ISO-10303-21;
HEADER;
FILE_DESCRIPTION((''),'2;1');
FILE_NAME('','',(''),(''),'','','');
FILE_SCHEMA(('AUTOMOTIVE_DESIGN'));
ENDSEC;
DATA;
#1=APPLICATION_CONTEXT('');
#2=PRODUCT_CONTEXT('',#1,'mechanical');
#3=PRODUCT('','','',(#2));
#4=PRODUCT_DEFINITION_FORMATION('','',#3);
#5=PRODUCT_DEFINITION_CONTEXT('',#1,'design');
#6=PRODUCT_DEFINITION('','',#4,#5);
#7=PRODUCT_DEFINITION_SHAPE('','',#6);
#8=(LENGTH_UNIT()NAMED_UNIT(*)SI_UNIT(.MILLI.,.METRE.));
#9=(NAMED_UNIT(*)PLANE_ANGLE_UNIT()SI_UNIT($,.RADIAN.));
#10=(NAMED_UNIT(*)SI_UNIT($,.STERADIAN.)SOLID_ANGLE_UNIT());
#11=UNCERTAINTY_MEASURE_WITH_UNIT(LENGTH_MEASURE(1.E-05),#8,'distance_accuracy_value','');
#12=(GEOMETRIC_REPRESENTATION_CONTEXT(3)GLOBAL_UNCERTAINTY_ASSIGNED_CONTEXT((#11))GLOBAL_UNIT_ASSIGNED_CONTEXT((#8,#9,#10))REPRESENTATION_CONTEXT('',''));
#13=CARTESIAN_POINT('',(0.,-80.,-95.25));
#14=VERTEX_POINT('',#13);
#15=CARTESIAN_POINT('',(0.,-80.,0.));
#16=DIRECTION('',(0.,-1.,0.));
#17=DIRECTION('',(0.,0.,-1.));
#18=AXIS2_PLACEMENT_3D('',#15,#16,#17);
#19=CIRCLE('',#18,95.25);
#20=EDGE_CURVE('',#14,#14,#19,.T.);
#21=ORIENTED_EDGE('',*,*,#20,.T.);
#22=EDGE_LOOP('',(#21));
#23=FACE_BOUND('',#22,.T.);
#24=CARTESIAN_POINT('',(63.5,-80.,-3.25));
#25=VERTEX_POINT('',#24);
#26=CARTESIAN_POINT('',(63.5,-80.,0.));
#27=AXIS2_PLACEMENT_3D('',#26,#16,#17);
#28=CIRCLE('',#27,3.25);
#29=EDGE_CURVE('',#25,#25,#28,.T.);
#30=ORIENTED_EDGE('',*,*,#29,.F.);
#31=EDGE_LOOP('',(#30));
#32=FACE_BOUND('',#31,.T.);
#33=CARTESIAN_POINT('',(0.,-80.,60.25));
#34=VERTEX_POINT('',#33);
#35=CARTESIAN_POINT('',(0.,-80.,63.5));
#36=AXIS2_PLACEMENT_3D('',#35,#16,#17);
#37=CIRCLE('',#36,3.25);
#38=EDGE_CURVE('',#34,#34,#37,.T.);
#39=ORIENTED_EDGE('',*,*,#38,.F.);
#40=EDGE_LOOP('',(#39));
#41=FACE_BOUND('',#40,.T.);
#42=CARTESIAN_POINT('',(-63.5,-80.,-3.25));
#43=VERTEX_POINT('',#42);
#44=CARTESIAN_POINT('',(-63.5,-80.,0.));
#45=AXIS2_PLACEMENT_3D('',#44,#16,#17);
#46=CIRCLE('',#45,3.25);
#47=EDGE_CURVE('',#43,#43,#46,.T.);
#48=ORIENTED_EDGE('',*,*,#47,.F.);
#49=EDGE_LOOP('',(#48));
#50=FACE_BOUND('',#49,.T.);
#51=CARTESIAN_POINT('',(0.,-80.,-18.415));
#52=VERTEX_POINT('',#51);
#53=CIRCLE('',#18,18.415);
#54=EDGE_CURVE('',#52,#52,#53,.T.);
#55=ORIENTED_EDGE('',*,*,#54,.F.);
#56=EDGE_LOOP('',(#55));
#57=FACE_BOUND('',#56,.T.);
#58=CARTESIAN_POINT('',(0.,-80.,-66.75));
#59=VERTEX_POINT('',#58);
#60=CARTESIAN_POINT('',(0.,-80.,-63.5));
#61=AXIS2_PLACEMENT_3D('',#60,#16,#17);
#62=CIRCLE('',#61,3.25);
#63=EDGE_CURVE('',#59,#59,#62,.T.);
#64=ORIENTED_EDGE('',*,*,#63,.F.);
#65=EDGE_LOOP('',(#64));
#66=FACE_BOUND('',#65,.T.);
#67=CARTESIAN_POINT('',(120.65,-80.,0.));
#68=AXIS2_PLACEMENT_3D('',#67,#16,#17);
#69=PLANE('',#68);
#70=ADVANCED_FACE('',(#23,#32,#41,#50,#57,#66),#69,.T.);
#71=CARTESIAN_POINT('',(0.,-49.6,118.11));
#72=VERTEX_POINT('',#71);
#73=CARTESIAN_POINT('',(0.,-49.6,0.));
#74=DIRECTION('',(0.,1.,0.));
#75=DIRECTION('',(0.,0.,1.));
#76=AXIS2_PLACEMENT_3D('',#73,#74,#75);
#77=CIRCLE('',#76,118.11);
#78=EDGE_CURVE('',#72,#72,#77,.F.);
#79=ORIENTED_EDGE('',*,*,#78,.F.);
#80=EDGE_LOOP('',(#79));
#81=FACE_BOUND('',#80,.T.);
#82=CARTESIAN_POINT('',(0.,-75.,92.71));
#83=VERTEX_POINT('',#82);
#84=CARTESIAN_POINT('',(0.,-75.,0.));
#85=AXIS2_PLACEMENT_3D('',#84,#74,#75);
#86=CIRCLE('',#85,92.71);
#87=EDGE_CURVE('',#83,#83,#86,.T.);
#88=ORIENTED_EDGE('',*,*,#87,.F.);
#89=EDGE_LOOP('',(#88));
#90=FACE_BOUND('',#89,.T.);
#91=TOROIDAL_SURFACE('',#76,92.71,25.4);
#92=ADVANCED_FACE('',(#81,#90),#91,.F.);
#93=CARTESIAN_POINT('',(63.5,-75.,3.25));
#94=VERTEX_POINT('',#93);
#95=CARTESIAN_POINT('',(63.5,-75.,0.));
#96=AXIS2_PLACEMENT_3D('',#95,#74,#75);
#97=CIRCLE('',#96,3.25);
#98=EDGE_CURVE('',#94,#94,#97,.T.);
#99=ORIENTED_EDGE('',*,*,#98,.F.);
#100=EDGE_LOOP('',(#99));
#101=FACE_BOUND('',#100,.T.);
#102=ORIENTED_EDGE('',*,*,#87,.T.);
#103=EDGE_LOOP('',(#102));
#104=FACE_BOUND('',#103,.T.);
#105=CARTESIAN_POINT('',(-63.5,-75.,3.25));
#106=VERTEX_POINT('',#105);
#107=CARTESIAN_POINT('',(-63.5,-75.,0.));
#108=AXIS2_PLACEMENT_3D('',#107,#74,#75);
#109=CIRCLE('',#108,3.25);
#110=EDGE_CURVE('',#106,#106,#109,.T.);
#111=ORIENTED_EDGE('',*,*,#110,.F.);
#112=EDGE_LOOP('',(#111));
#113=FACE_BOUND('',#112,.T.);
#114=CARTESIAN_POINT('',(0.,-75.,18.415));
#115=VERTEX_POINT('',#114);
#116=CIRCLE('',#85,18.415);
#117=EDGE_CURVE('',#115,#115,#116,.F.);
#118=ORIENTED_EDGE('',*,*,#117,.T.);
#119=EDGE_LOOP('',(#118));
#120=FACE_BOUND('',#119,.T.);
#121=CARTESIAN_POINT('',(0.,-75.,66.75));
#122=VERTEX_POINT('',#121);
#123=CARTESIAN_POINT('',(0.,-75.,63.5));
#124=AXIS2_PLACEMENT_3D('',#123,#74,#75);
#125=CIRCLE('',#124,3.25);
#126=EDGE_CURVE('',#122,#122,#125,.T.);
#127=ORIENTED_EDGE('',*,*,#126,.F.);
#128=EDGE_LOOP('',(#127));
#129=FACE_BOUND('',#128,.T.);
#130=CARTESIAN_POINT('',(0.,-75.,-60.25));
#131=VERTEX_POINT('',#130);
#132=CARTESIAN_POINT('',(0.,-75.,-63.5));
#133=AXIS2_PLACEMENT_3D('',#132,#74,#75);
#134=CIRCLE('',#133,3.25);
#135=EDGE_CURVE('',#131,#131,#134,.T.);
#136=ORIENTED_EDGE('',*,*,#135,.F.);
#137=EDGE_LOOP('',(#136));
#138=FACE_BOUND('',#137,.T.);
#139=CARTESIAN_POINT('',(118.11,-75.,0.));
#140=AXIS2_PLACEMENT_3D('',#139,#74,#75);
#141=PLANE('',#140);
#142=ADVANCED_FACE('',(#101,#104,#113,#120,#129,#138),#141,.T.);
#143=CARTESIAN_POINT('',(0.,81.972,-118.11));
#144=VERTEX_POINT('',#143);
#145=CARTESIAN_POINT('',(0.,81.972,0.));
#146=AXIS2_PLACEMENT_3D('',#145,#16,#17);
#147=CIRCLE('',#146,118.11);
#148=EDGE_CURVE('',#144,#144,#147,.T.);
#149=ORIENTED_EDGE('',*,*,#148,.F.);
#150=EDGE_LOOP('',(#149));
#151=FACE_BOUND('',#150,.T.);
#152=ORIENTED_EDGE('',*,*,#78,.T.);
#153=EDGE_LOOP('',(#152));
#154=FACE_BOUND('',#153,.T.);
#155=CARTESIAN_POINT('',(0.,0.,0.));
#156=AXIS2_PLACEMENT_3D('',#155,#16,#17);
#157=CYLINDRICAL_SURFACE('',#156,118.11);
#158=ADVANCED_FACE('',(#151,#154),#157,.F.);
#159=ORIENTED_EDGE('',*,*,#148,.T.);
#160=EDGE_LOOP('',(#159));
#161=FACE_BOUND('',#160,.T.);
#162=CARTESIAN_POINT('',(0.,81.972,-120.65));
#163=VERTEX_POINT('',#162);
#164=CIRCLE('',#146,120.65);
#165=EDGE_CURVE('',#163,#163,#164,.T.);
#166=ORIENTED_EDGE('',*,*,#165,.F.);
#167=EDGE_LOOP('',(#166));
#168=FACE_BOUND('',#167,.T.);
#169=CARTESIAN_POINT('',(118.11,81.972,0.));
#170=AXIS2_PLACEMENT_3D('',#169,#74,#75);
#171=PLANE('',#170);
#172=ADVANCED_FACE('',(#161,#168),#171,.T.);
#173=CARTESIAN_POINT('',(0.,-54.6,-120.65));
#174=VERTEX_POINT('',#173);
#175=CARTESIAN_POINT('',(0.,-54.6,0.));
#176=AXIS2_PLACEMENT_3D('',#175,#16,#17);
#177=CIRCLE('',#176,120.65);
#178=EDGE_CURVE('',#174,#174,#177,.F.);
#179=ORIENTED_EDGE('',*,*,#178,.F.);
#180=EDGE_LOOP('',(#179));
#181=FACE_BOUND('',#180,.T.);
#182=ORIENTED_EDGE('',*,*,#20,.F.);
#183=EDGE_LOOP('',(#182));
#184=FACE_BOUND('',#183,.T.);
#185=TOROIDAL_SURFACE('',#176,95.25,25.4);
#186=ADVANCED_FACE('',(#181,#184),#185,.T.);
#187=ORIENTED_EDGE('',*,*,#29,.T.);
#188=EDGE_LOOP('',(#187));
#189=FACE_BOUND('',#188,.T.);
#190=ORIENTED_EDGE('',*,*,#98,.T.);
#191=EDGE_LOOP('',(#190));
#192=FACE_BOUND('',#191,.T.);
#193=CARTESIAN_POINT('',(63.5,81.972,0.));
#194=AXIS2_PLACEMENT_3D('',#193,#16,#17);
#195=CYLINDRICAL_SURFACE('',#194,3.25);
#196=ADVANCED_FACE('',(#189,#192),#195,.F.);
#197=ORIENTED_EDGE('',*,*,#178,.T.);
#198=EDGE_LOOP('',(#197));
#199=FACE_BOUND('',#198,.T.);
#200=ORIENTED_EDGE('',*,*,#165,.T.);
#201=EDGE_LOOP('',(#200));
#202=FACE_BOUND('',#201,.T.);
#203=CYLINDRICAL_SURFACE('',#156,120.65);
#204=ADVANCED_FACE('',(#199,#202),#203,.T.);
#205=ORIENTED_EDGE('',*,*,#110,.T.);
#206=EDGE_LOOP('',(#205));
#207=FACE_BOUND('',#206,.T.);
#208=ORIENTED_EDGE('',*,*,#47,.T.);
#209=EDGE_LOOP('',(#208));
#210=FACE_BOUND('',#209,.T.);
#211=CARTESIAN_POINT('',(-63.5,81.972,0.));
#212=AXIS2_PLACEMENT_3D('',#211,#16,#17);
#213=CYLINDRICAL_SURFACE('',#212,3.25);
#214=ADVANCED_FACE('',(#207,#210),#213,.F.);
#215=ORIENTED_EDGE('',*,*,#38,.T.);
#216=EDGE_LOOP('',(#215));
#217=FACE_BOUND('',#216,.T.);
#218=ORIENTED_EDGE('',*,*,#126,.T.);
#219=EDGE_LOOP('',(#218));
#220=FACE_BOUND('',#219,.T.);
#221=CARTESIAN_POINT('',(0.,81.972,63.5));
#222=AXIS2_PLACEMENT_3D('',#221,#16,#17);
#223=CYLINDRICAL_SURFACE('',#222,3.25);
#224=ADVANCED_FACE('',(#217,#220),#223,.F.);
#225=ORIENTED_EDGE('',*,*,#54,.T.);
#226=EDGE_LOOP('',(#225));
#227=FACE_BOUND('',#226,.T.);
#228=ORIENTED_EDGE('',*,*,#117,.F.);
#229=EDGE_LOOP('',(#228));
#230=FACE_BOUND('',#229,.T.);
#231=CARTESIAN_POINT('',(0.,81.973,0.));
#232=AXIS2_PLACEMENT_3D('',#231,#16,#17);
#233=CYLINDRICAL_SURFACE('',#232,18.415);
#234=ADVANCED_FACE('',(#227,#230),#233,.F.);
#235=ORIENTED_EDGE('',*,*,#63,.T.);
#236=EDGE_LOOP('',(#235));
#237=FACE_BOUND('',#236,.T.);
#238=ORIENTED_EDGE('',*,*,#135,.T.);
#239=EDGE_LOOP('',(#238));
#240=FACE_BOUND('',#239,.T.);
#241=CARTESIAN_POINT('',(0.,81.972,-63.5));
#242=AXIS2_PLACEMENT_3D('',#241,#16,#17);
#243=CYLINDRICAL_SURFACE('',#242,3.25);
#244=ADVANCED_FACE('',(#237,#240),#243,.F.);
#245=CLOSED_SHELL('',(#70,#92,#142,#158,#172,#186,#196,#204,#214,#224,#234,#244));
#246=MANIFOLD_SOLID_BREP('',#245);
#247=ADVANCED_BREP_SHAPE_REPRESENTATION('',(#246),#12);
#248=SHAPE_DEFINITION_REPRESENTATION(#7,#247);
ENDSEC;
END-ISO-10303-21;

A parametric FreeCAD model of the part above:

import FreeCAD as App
import Part
import Sketcher
Q = App.Units.Quantity


def edges_at(feature, points):
    """Names of the edges that pass closest to the given points."""
    edges = feature.Shape.Edges
    near = lambda p: min(range(len(edges)), key=lambda i: edges[i].distToShape(Part.Vertex(*p))[0])
    return sorted({f"Edge{near(p) + 1}" for p in points})

doc = App.newDocument("Part")
body = doc.addObject("PartDesign::Body", "Body")

# Sketch on XY plane
sketch1 = body.newObject("Sketcher::SketchObject", "Sketch")
sketch1.AttachmentSupport = (doc.getObject("XY_Plane"), [""])
sketch1.MapMode = "FlatFace"
sketch1.addGeometry([
    Part.LineSegment(App.Vector(0, -80, 0), App.Vector(120.7, -80, 0)),  # 0
    Part.LineSegment(App.Vector(120.7, -80, 0), App.Vector(120.7, 82, 0)),  # 1
    Part.LineSegment(App.Vector(120.7, 82, 0), App.Vector(118.1, 82, 0)),  # 2
    Part.LineSegment(App.Vector(118.1, 82, 0), App.Vector(118.1, -75, 0)),  # 3
    Part.LineSegment(App.Vector(118.1, -75, 0), App.Vector(0, -75, 0)),  # 4
    Part.LineSegment(App.Vector(0, -75, 0), App.Vector(0, -80, 0)),  # 5
], False)
sketch1.addConstraint([
    Sketcher.Constraint("Coincident", 0, 2, 1, 1),
    Sketcher.Constraint("Coincident", 1, 2, 2, 1),
    Sketcher.Constraint("Coincident", 2, 2, 3, 1),
    Sketcher.Constraint("Coincident", 3, 2, 4, 1),
    Sketcher.Constraint("Coincident", 4, 2, 5, 1),
    Sketcher.Constraint("Coincident", 5, 2, 0, 1),
    Sketcher.Constraint("Horizontal", 0),
    Sketcher.Constraint("Vertical", 1),
    Sketcher.Constraint("Horizontal", 2),
    Sketcher.Constraint("Vertical", 3),
    Sketcher.Constraint("Horizontal", 4),
    Sketcher.Constraint("Vertical", 5),
    Sketcher.Constraint("PointOnObject", 4, 2, -2),
    Sketcher.Constraint("DistanceX", 2, 2, 2, 1, Q("0.1 in")),
    Sketcher.Constraint("DistanceX", 0, 1, 0, 2, Q("4.75 in")),
    Sketcher.Constraint("DistanceY", 3, 2, 3, 1, Q("6.18 in")),
    Sketcher.Constraint("DistanceY", 1, 1, 1, 2, Q("161.972 mm")),
    Sketcher.Constraint("DistanceY", 0, 2, -1, 1, Q("80 mm")),
])
revolution = body.newObject("PartDesign::Revolution", "Revolution")
revolution.Profile = sketch1
revolution.ReferenceAxis = (sketch1, ["V_Axis"])
revolution.Angle = 360

# Sketch on XZ plane
sketch2 = body.newObject("Sketcher::SketchObject", "Sketch001")
sketch2.AttachmentSupport = (doc.getObject("XZ_Plane"), [""])
sketch2.MapMode = "FlatFace"
sketch2.AttachmentOffset = App.Placement(App.Vector(0, 0, 80), App.Rotation())
sketch2.addGeometry(Part.Circle(App.Vector(0, 0, 0), App.Vector(0, 0, 1), 18), False)
sketch2.addConstraint([
    Sketcher.Constraint("Coincident", 0, 3, -1, 1),
    Sketcher.Constraint("Diameter", 0, Q("1.45 in")),
])
pocket1 = body.newObject("PartDesign::Pocket", "Pocket")
pocket1.Profile = sketch2
pocket1.Type = "UpToFirst"

# Sketch on XZ plane
sketch3 = body.newObject("Sketcher::SketchObject", "Sketch002")
sketch3.AttachmentSupport = (doc.getObject("XZ_Plane"), [""])
sketch3.MapMode = "FlatFace"
sketch3.AttachmentOffset = App.Placement(App.Vector(0, 0, 80), App.Rotation())
sketch3.addGeometry([
    Part.Circle(App.Vector(0, 63.5, 0), App.Vector(0, 0, 1), 3.2),
    Part.Circle(App.Vector(0, -63.5, 0), App.Vector(0, 0, 1), 3.2),
    Part.Circle(App.Vector(63.5, 0, 0), App.Vector(0, 0, 1), 3.2),
    Part.Circle(App.Vector(-63.5, 0, 0), App.Vector(0, 0, 1), 3.2),
], False)
sketch3.addConstraint([
    Sketcher.Constraint("Equal", 0, 1),
    Sketcher.Constraint("Equal", 1, 2),
    Sketcher.Constraint("Equal", 2, 3),
    Sketcher.Constraint("Symmetric", 0, 3, 1, 3, -1, 1),
    Sketcher.Constraint("Symmetric", 2, 3, 3, 3, -1, 1),
    Sketcher.Constraint("PointOnObject", 0, 3, -2),
    Sketcher.Constraint("PointOnObject", 2, 3, -1),
    Sketcher.Constraint("DistanceY", 1, 3, 0, 3, Q("5 in")),
    Sketcher.Constraint("DistanceX", 3, 3, 2, 3, Q("5 in")),
    Sketcher.Constraint("Diameter", 0, Q("6.5 mm")),
])
pocket2 = body.newObject("PartDesign::Pocket", "Pocket001")
pocket2.Profile = sketch3
pocket2.Type = "ThroughAll"
doc.recompute()

fillet = body.newObject("PartDesign::Fillet", "Fillet")
fillet.Base = (pocket2, edges_at(pocket2, [(0, -75, 118.11), (0, -80, 120.65)]))
fillet.Radius = Q("1 in")

doc.recompute()
